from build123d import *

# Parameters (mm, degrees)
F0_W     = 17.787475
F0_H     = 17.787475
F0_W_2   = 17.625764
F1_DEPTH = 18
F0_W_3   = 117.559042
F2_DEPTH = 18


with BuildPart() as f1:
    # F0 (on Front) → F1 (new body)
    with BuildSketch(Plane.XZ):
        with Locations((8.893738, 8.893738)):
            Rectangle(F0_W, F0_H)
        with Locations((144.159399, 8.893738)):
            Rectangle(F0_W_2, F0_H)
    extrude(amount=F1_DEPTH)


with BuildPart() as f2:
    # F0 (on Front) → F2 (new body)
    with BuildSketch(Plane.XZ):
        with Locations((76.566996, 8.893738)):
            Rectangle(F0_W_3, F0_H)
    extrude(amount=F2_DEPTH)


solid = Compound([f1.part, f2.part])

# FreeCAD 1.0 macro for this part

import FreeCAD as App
import Part
import Sketcher

V = App.Vector

doc = App.newDocument("Part")
params = doc.addObject("Spreadsheet::Sheet", "Params")
for row, (alias, value) in enumerate([
    ("pad1_length", "18 mm"),
    ("pad2_length", "18 mm"),
], start=1):
    params.set(f"A{row}", alias)
    params.set(f"B{row}", "=" + value)
    params.setAlias(f"B{row}", alias)

body = doc.addObject("PartDesign::Body", "Body")
body.AllowCompound = True

# Sketch on XZ plane
sketch1 = body.newObject("Sketcher::SketchObject", "Sketch")
sketch1.AttachmentSupport = (doc.getObject("XZ_Plane"), [""])
sketch1.MapMode = "FlatFace"
sketch1.addGeometry([
    Part.LineSegment(V(0, 17.787475, 0), V(0, 0, 0)),  # 0
    Part.LineSegment(V(0, 0, 0), V(17.787475, 0, 0)),  # 1
    Part.LineSegment(V(17.787475, 0, 0), V(17.787475, 17.787475, 0)),  # 2
    Part.LineSegment(V(17.787475, 17.787475, 0), V(0, 17.787475, 0)),  # 3
    Part.LineSegment(V(135.346517, 17.787475, 0), V(135.346517, 0, 0)),  # 4
    Part.LineSegment(V(135.346517, 0, 0), V(152.972281, 0, 0)),  # 5
    Part.LineSegment(V(152.972281, 0, 0), V(152.972281, 17.787475, 0)),  # 6
    Part.LineSegment(V(152.972281, 17.787475, 0), V(135.346517, 17.787475, 0)),  # 7
], False)
sketch1.addConstraint([
    Sketcher.Constraint("Coincident", 0, 2, 1, 1),
    Sketcher.Constraint("Coincident", 1, 2, 2, 1),
    Sketcher.Constraint("Coincident", 2, 2, 3, 1),
    Sketcher.Constraint("Coincident", 3, 2, 0, 1),
    Sketcher.Constraint("Coincident", 4, 2, 5, 1),
    Sketcher.Constraint("Coincident", 5, 2, 6, 1),
    Sketcher.Constraint("Coincident", 6, 2, 7, 1),
    Sketcher.Constraint("Coincident", 7, 2, 4, 1),
    Sketcher.Constraint("Vertical", 0),
    Sketcher.Constraint("Horizontal", 1),
    Sketcher.Constraint("Vertical", 2),
    Sketcher.Constraint("Horizontal", 3),
    Sketcher.Constraint("Vertical", 4),
    Sketcher.Constraint("Horizontal", 5),
    Sketcher.Constraint("Vertical", 6),
    Sketcher.Constraint("Horizontal", 7),
    Sketcher.Constraint("Coincident", 0, 2, -1, 1),
    Sketcher.Constraint("PointOnObject", 4, 2, -1),
    Sketcher.Constraint("Horizontal", 3, 2, 6, 2),
    Sketcher.Constraint("Equal", 3, 0),
    Sketcher.Constraint("DistanceX", 1, 1, 1, 2, 17.787475),
    Sketcher.Constraint("DistanceX", 5, 1, 5, 2, 17.625764),
    Sketcher.Constraint("DistanceX", -1, 1, 5, 2, 152.972281),
])
pad1 = body.newObject("PartDesign::Pad", "Pad")
pad1.Profile = sketch1
pad1.setExpression("Length", "Params.pad1_length")
body2 = doc.addObject("PartDesign::Body", "Body001")

# Sketch on XZ plane
sketch2 = body2.newObject("Sketcher::SketchObject", "Sketch001")
sketch2.AttachmentSupport = (doc.getObject("XZ_Plane001"), [""])
sketch2.MapMode = "FlatFace"
sketch2.addGeometry([
    Part.LineSegment(V(17.787475, 17.787475, 0), V(17.787475, 0, 0)),
    Part.LineSegment(V(17.787475, 0, 0), V(135.346517, 0, 0)),
    Part.LineSegment(V(135.346517, 0, 0), V(135.346517, 17.787475, 0)),
    Part.LineSegment(V(135.346517, 17.787475, 0), V(17.787475, 17.787475, 0)),
], False)
sketch2.addConstraint([
    Sketcher.Constraint("Coincident", 0, 2, 1, 1),
    Sketcher.Constraint("Coincident", 1, 2, 2, 1),
    Sketcher.Constraint("Coincident", 2, 2, 3, 1),
    Sketcher.Constraint("Coincident", 3, 2, 0, 1),
    Sketcher.Constraint("Vertical", 0),
    Sketcher.Constraint("Horizontal", 1),
    Sketcher.Constraint("Vertical", 2),
    Sketcher.Constraint("Horizontal", 3),
    Sketcher.Constraint("PointOnObject", 0, 2, -1),
    Sketcher.Constraint("DistanceX", 1, 1, 1, 2, 117.559042),
    Sketcher.Constraint("DistanceY", 0, 2, 0, 1, 17.787475),
    Sketcher.Constraint("DistanceX", -1, 1, 0, 2, 17.787475),
])
pad2 = body2.newObject("PartDesign::Pad", "Pad001")
pad2.Profile = sketch2
pad2.setExpression("Length", "Params.pad2_length")

doc.recompute()
